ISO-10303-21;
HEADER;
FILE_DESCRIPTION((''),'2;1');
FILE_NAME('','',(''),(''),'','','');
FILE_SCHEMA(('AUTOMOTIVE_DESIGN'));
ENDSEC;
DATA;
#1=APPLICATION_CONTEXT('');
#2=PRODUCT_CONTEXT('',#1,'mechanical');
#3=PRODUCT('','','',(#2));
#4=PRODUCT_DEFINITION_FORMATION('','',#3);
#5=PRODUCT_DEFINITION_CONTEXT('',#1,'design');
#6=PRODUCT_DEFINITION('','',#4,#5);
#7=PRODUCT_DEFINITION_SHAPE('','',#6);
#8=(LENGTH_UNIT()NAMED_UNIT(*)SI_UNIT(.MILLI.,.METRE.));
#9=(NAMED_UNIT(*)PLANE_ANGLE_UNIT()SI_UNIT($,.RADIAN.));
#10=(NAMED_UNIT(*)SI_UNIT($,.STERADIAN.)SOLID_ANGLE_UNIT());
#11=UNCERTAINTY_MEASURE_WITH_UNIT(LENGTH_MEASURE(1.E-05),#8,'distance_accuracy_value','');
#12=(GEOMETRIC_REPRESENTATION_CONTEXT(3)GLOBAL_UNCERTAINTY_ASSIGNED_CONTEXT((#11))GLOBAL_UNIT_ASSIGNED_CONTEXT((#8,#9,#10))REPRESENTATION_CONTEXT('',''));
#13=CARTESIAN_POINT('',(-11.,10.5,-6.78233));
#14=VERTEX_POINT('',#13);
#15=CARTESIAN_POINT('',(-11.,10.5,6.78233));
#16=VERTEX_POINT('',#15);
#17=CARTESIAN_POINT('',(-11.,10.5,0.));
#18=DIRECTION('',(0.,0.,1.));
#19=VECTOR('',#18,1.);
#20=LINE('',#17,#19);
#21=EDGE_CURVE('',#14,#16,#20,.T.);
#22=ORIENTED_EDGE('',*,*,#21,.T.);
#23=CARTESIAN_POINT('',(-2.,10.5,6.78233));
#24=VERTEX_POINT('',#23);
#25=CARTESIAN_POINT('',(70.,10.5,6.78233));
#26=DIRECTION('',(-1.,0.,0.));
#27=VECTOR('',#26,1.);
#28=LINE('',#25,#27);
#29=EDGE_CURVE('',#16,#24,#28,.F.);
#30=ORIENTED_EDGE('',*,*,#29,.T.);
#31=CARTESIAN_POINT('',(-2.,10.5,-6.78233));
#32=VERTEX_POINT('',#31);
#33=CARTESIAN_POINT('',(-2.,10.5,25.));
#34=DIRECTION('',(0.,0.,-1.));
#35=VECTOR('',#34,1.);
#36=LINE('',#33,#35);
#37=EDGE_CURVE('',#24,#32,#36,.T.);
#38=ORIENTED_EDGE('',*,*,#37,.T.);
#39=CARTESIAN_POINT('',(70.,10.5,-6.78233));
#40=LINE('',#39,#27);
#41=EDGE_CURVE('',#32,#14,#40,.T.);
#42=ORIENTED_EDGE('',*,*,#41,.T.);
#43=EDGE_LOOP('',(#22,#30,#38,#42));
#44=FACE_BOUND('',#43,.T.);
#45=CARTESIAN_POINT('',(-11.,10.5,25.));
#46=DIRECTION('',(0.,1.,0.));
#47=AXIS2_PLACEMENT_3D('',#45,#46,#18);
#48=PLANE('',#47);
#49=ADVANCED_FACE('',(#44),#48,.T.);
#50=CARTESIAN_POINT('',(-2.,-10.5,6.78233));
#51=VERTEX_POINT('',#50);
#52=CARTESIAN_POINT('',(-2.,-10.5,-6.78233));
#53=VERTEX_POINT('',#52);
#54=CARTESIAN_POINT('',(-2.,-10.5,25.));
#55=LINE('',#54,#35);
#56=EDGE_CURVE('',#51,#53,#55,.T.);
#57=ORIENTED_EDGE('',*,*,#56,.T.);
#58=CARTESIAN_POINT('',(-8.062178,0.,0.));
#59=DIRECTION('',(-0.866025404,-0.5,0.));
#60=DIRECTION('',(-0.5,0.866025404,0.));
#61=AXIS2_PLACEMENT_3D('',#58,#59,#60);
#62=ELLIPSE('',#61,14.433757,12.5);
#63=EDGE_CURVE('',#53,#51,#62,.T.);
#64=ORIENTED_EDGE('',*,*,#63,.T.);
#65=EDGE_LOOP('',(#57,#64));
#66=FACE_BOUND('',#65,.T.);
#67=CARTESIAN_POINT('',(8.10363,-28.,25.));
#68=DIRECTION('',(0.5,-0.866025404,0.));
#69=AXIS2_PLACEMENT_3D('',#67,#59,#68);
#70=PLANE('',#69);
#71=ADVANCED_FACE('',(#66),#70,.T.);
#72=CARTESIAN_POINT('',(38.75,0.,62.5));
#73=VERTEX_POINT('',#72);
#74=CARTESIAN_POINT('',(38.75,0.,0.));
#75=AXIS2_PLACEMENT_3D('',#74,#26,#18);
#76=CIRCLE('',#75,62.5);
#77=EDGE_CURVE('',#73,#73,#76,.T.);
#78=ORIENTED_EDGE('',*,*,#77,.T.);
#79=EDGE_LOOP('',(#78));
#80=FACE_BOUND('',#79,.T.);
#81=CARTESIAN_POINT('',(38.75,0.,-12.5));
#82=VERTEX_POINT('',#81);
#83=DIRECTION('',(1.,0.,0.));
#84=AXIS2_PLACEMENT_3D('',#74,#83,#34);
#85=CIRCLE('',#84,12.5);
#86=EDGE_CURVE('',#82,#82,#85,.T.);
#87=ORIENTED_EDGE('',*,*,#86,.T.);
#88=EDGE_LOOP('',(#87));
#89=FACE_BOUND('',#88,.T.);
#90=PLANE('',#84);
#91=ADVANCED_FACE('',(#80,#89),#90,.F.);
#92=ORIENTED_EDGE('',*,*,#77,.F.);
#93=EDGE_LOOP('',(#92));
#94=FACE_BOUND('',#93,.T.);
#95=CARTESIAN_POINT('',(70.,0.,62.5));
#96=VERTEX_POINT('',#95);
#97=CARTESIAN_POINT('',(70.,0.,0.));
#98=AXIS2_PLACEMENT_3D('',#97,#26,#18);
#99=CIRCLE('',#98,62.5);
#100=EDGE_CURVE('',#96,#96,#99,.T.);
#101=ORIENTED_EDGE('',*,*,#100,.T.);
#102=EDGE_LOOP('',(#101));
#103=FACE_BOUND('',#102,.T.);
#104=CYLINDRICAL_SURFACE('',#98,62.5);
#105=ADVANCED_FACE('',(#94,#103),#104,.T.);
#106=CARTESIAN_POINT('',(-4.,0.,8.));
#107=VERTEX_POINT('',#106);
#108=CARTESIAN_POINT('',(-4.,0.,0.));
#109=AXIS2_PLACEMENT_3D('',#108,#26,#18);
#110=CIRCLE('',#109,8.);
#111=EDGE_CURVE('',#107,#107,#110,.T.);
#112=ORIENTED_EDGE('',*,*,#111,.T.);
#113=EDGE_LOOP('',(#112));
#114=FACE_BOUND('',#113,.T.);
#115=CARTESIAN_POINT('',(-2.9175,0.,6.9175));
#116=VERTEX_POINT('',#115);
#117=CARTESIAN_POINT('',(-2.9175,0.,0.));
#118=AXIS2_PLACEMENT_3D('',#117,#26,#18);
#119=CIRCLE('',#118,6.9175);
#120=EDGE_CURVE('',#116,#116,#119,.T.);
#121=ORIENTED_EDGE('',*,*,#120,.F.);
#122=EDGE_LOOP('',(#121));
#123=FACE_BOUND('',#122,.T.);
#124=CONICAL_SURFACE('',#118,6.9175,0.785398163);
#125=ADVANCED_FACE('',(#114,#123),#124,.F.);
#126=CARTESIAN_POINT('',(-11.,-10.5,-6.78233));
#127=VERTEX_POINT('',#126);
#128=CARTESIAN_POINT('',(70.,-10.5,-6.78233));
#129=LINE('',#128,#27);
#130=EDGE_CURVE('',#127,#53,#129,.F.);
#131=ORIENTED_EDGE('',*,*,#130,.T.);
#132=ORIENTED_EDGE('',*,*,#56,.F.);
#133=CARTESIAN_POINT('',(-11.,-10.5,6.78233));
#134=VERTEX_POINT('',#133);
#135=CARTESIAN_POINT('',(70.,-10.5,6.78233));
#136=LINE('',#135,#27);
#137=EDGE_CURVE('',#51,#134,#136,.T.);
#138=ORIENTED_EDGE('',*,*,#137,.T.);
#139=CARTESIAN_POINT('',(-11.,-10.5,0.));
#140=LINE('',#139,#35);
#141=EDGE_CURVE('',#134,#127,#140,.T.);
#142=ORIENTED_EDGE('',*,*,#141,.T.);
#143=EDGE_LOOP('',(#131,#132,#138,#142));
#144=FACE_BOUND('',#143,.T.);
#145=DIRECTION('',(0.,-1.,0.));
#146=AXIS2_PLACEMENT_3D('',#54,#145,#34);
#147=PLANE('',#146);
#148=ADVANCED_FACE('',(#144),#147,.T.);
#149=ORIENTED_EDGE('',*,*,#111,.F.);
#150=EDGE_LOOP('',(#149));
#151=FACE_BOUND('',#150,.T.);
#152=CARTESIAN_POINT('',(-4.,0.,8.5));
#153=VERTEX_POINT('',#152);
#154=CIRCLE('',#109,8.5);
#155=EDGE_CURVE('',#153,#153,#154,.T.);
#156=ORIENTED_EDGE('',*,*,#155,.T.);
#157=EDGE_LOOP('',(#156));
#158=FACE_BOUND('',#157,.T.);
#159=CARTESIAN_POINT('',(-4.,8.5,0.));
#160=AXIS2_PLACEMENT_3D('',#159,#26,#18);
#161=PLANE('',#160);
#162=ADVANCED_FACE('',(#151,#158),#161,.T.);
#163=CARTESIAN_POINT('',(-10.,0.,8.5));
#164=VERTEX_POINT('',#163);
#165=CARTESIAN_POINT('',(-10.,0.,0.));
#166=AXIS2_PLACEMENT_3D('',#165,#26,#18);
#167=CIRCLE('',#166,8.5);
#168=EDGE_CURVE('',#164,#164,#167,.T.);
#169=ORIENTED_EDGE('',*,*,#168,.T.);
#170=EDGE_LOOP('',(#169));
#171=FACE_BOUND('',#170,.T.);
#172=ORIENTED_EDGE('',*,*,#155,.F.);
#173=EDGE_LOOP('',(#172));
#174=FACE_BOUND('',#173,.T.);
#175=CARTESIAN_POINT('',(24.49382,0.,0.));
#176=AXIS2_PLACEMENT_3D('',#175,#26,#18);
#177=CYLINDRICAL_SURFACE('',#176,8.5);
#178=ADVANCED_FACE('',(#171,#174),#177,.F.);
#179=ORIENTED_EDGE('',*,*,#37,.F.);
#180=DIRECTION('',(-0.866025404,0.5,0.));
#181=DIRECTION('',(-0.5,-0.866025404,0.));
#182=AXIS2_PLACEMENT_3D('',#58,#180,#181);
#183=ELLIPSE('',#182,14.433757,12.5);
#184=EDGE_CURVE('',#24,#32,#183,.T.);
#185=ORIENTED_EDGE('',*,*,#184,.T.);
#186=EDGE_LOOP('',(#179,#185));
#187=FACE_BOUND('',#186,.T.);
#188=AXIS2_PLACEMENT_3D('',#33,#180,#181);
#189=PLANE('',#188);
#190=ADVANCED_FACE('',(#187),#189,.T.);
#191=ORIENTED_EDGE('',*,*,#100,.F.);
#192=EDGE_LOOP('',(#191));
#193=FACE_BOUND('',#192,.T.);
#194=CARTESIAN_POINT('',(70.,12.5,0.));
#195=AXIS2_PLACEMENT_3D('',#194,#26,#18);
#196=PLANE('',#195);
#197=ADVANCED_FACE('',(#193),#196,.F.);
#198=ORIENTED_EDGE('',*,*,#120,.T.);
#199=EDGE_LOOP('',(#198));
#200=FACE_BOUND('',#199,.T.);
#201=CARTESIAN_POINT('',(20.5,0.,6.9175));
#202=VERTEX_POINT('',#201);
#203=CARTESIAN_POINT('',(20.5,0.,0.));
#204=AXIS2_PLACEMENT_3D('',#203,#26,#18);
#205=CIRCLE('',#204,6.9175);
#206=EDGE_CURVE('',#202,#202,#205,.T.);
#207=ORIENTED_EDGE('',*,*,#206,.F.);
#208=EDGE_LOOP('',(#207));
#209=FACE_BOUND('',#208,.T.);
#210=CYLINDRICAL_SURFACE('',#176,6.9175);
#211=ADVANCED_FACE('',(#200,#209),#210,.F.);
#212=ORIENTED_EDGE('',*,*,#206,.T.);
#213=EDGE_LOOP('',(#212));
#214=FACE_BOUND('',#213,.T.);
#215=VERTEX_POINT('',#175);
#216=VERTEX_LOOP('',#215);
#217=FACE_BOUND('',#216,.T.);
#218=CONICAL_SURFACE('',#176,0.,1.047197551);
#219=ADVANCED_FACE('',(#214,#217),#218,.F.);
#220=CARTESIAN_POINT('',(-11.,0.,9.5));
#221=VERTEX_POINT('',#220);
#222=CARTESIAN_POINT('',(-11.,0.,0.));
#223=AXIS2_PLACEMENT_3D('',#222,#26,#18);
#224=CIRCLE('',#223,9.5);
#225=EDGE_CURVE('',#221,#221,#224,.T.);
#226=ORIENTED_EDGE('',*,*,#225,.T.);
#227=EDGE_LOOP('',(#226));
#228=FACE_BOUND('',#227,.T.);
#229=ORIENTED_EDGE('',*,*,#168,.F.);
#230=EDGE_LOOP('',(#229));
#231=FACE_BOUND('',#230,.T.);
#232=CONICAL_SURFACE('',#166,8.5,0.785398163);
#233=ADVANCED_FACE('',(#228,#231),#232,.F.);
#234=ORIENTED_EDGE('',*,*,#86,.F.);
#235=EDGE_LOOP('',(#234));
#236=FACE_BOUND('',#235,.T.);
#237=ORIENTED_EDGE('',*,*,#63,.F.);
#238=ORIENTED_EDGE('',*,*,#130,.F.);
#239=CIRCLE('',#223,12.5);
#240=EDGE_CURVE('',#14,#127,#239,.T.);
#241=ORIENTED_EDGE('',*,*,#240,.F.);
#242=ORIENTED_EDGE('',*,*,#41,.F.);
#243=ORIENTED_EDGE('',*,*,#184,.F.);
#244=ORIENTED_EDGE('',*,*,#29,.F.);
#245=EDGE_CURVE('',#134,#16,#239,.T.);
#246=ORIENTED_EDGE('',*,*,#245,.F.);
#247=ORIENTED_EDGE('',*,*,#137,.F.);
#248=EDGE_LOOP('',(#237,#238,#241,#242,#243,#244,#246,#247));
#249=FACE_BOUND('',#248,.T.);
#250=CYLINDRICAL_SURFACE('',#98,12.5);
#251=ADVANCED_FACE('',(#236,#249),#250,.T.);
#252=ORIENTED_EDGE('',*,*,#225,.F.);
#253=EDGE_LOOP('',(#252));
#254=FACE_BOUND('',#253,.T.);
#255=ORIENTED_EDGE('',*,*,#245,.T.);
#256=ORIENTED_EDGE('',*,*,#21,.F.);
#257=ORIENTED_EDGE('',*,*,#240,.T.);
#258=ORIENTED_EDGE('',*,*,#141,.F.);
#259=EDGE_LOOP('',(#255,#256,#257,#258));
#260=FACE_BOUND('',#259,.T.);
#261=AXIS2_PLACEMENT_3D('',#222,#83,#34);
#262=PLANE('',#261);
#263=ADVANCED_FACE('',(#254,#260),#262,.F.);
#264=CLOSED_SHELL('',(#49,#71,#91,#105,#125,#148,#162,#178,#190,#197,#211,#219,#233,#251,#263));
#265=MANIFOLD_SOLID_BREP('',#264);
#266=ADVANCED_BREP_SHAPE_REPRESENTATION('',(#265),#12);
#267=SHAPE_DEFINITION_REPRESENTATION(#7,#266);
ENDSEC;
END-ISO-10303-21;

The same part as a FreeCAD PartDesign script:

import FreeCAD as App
import Part
import Sketcher

V = App.Vector
Q = App.Units.Quantity

doc = App.newDocument("Part")
body = doc.addObject("PartDesign::Body", "Body")

sketch1 = body.newObject("Sketcher::SketchObject", "Sketch")
sketch1.AttachmentSupport = (doc.getObject("XY_Plane"), [""])
sketch1.MapMode = "FlatFace"
sketch1.addGeometry(Part.LineSegment(V(-11, 12, 0), V(-11, 0, 0)), False)
sketch1.addGeometry(Part.LineSegment(V(-11, 0, 0), V(70, 0, 0)), False)
sketch1.addGeometry(Part.LineSegment(V(70, 0, 0), V(70, 12, 0)), False)
sketch1.addGeometry(Part.LineSegment(V(70, 12, 0), V(-11, 12, 0)), False)
sketch1.addConstraint(Sketcher.Constraint("Coincident", 0, 2, 1, 1))
sketch1.addConstraint(Sketcher.Constraint("Coincident", 1, 2, 2, 1))
sketch1.addConstraint(Sketcher.Constraint("Coincident", 2, 2, 3, 1))
sketch1.addConstraint(Sketcher.Constraint("Coincident", 3, 2, 0, 1))
sketch1.addConstraint(Sketcher.Constraint("Vertical", 0))
sketch1.addConstraint(Sketcher.Constraint("Horizontal", 1))
sketch1.addConstraint(Sketcher.Constraint("Vertical", 2))
sketch1.addConstraint(Sketcher.Constraint("Horizontal", 3))
sketch1.addConstraint(Sketcher.Constraint("PointOnObject", 0, 2, -1))
sketch1.addConstraint(Sketcher.Constraint("DistanceX", 1, 1, 1, 2, 81.0))
sketch1.addConstraint(Sketcher.Constraint("DistanceY", 0, 2, 0, 1, 12.5))
sketch1.addConstraint(Sketcher.Constraint("DistanceX", 0, 2, -1, 1, 11.0))
revolution = body.newObject("PartDesign::Revolution", "Revolution")
revolution.Profile = sketch1
revolution.ReferenceAxis = (sketch1, ["H_Axis"])
revolution.Angle = 360

sketch2 = body.newObject("Sketcher::SketchObject", "Sketch001")
sketch2.AttachmentSupport = (doc.getObject("XY_Plane"), [""])
sketch2.MapMode = "FlatFace"
sketch2.addGeometry(Part.LineSegment(V(39, 62, 0), V(39, 0, 0)), False)
sketch2.addGeometry(Part.LineSegment(V(39, 0, 0), V(70, 0, 0)), False)
sketch2.addGeometry(Part.LineSegment(V(70, 0, 0), V(70, 62, 0)), False)
sketch2.addGeometry(Part.LineSegment(V(70, 62, 0), V(39, 62, 0)), False)
sketch2.addConstraint(Sketcher.Constraint("Coincident", 0, 2, 1, 1))
sketch2.addConstraint(Sketcher.Constraint("Coincident", 1, 2, 2, 1))
sketch2.addConstraint(Sketcher.Constraint("Coincident", 2, 2, 3, 1))
sketch2.addConstraint(Sketcher.Constraint("Coincident", 3, 2, 0, 1))
sketch2.addConstraint(Sketcher.Constraint("Vertical", 0))
sketch2.addConstraint(Sketcher.Constraint("Horizontal", 1))
sketch2.addConstraint(Sketcher.Constraint("Vertical", 2))
sketch2.addConstraint(Sketcher.Constraint("Horizontal", 3))
sketch2.addConstraint(Sketcher.Constraint("PointOnObject", 0, 2, -1))
sketch2.addConstraint(Sketcher.Constraint("DistanceY", 0, 2, 0, 1, 62.5))
sketch2.addConstraint(Sketcher.Constraint("DistanceX", -1, 1, 1, 2, 70.0))
sketch2.addConstraint(Sketcher.Constraint("DistanceX", 1, 1, 1, 2, 31.25))
revolution2 = body.newObject("PartDesign::Revolution", "Revolution001")
revolution2.Profile = sketch2
revolution2.ReferenceAxis = (sketch2, ["H_Axis"])
revolution2.Angle = 360

sketch3 = body.newObject("Sketcher::SketchObject", "Sketch002")
sketch3.AttachmentSupport = (doc.getObject("XY_Plane"), [""])
sketch3.MapMode = "FlatFace"
sketch3.addGeometry(Part.LineSegment(V(-67, -28, 0), V(8, -28, 0)), False)
sketch3.addGeometry(Part.LineSegment(V(8, -28, 0), V(-2, -10, 0)), False)
sketch3.addGeometry(Part.LineSegment(V(-2, -10, 0), V(-11, -10, 0)), False)
sketch3.addGeometry(Part.LineSegment(V(-11, -10, 0), V(-11, -16, 0)), False)
sketch3.addGeometry(Part.LineSegment(V(-11, -16, 0), V(-56, -16, 0)), False)
sketch3.addGeometry(Part.LineSegment(V(-56, -16, 0), V(-56, 16, 0)), False)
sketch3.addGeometry(Part.LineSegment(V(-56, 16, 0), V(-11, 16, 0)), False)
sketch3.addGeometry(Part.LineSegment(V(-11, 16, 0), V(-11, 10, 0)), False)
sketch3.addGeometry(Part.LineSegment(V(-11, 10, 0), V(-2, 10, 0)), False)
sketch3.addGeometry(Part.LineSegment(V(-2, 10, 0), V(8, 28, 0)), False)
sketch3.addGeometry(Part.LineSegment(V(8, 28, 0), V(-67, 28, 0)), False)
sketch3.addGeometry(Part.LineSegment(V(-67, 28, 0), V(-67, -28, 0)), False)
sketch3.addConstraint(Sketcher.Constraint("Coincident", 0, 2, 1, 1))
sketch3.addConstraint(Sketcher.Constraint("Coincident", 1, 2, 2, 1))
sketch3.addConstraint(Sketcher.Constraint("Coincident", 2, 2, 3, 1))
sketch3.addConstraint(Sketcher.Constraint("Coincident", 3, 2, 4, 1))
sketch3.addConstraint(Sketcher.Constraint("Coincident", 4, 2, 5, 1))
sketch3.addConstraint(Sketcher.Constraint("Coincident", 5, 2, 6, 1))
sketch3.addConstraint(Sketcher.Constraint("Coincident", 6, 2, 7, 1))
sketch3.addConstraint(Sketcher.Constraint("Coincident", 7, 2, 8, 1))
sketch3.addConstraint(Sketcher.Constraint("Coincident", 8, 2, 9, 1))
sketch3.addConstraint(Sketcher.Constraint("Coincident", 9, 2, 10, 1))
sketch3.addConstraint(Sketcher.Constraint("Coincident", 10, 2, 11, 1))
sketch3.addConstraint(Sketcher.Constraint("Coincident", 11, 2, 0, 1))
sketch3.addConstraint(Sketcher.Constraint("Horizontal", 0))
sketch3.addConstraint(Sketcher.Constraint("Horizontal", 2))
sketch3.addConstraint(Sketcher.Constraint("Vertical", 3))
sketch3.addConstraint(Sketcher.Constraint("Horizontal", 4))
sketch3.addConstraint(Sketcher.Constraint("Vertical", 5))
sketch3.addConstraint(Sketcher.Constraint("Horizontal", 6))
sketch3.addConstraint(Sketcher.Constraint("Vertical", 7))
sketch3.addConstraint(Sketcher.Constraint("Horizontal", 8))
sketch3.addConstraint(Sketcher.Constraint("Horizontal", 10))
sketch3.addConstraint(Sketcher.Constraint("Vertical", 11))
sketch3.addConstraint(Sketcher.Constraint("Symmetric", 3, 2, 6, 2, -1))
sketch3.addConstraint(Sketcher.Constraint("Symmetric", 1, 2, 8, 2, -1))
sketch3.addConstraint(Sketcher.Constraint("Symmetric", 0, 2, 9, 2, -1))
sketch3.addConstraint(Sketcher.Constraint("DistanceX", 2, 2, 2, 1, 9.0))
sketch3.addConstraint(Sketcher.Constraint("DistanceX", 4, 2, 4, 1, 45.0))
sketch3.addConstraint(Sketcher.Constraint("DistanceY", 3, 2, 3, 1, 5.0))
sketch3.addConstraint(Sketcher.Constraint("DistanceY", 5, 1, 5, 2, 31.0))
sketch3.addConstraint(Sketcher.Constraint("DistanceY", 11, 2, 11, 1, 56.0))
sketch3.addConstraint(Sketcher.Constraint("Angle", 1, Q("120 deg")))
sketch3.addConstraint(Sketcher.Constraint("DistanceX", 1, 2, -1, 1, 2.0))
sketch3.addConstraint(Sketcher.Constraint("DistanceX", 10, 2, -1, 1, 67.0))
pocket1 = body.newObject("PartDesign::Pocket", "Pocket")
pocket1.Profile = sketch3
pocket1.Type = "ThroughAll"
pocket1.Midplane = True

sketch4 = body.newObject("Sketcher::SketchObject", "Sketch003")
sketch4.AttachmentSupport = (doc.getObject("XY_Plane"), [""])
sketch4.MapMode = "FlatFace"
sketch4.addGeometry(Part.LineSegment(V(-11, 9.5, 0), V(-11, 0, 0)), False)
sketch4.addGeometry(Part.LineSegment(V(-11, 0, 0), V(24.5, 0, 0)), False)
sketch4.addGeometry(Part.LineSegment(V(24.5, 0, 0), V(20.5, 6.9, 0)), False)
sketch4.addGeometry(Part.LineSegment(V(20.5, 6.9, 0), V(-2.9, 6.9, 0)), False)
sketch4.addGeometry(Part.LineSegment(V(-2.9, 6.9, 0), V(-4, 8, 0)), False)
sketch4.addGeometry(Part.LineSegment(V(-4, 8, 0), V(-4, 8.5, 0)), False)
sketch4.addGeometry(Part.LineSegment(V(-4, 8.5, 0), V(-10, 8.5, 0)), False)
sketch4.addGeometry(Part.LineSegment(V(-10, 8.5, 0), V(-11, 9.5, 0)), False)
sketch4.addConstraint(Sketcher.Constraint("Coincident", 0, 2, 1, 1))
sketch4.addConstraint(Sketcher.Constraint("Coincident", 1, 2, 2, 1))
sketch4.addConstraint(Sketcher.Constraint("Coincident", 2, 2, 3, 1))
sketch4.addConstraint(Sketcher.Constraint("Coincident", 3, 2, 4, 1))
sketch4.addConstraint(Sketcher.Constraint("Coincident", 4, 2, 5, 1))
sketch4.addConstraint(Sketcher.Constraint("Coincident", 5, 2, 6, 1))
sketch4.addConstraint(Sketcher.Constraint("Coincident", 6, 2, 7, 1))
sketch4.addConstraint(Sketcher.Constraint("Coincident", 7, 2, 0, 1))
sketch4.addConstraint(Sketcher.Constraint("Vertical", 0))
sketch4.addConstraint(Sketcher.Constraint("Horizontal", 1))
sketch4.addConstraint(Sketcher.Constraint("Horizontal", 3))
sketch4.addConstraint(Sketcher.Constraint("Vertical", 5))
sketch4.addConstraint(Sketcher.Constraint("Horizontal", 6))
sketch4.addConstraint(Sketcher.Constraint("PointOnObject", 0, 2, -1))
sketch4.addConstraint(Sketcher.Constraint("Parallel", 4, 7))
sketch4.addConstraint(Sketcher.Constraint("DistanceX", 6, 2, 6, 1, 6.0))
sketch4.addConstraint(Sketcher.Constraint("Angle", 2, Q("120 deg")))
sketch4.addConstraint(Sketcher.Constraint("Angle", 4, Q("135 deg")))
sketch4.addConstraint(Sketcher.Constraint("DistanceY", 0, 2, 0, 1, 9.5))
sketch4.addConstraint(Sketcher.Constraint("DistanceY", 5, 1, 5, 2, 0.5))
sketch4.addConstraint(Sketcher.Constraint("DistanceX", 0, 2, -1, 1, 11.0))
sketch4.addConstraint(Sketcher.Constraint("DistanceX", 4, 2, -1, 1, 4.0))
sketch4.addConstraint(Sketcher.Constraint("DistanceX", -1, 1, 2, 2, 20.5))
sketch4.addConstraint(Sketcher.Constraint("DistanceX", 3, 2, 3, 1, 23.4175))
groove = body.newObject("PartDesign::Groove", "Groove")
groove.Profile = sketch4
groove.ReferenceAxis = (sketch4, ["H_Axis"])
groove.Angle = 360

doc.recompute()
